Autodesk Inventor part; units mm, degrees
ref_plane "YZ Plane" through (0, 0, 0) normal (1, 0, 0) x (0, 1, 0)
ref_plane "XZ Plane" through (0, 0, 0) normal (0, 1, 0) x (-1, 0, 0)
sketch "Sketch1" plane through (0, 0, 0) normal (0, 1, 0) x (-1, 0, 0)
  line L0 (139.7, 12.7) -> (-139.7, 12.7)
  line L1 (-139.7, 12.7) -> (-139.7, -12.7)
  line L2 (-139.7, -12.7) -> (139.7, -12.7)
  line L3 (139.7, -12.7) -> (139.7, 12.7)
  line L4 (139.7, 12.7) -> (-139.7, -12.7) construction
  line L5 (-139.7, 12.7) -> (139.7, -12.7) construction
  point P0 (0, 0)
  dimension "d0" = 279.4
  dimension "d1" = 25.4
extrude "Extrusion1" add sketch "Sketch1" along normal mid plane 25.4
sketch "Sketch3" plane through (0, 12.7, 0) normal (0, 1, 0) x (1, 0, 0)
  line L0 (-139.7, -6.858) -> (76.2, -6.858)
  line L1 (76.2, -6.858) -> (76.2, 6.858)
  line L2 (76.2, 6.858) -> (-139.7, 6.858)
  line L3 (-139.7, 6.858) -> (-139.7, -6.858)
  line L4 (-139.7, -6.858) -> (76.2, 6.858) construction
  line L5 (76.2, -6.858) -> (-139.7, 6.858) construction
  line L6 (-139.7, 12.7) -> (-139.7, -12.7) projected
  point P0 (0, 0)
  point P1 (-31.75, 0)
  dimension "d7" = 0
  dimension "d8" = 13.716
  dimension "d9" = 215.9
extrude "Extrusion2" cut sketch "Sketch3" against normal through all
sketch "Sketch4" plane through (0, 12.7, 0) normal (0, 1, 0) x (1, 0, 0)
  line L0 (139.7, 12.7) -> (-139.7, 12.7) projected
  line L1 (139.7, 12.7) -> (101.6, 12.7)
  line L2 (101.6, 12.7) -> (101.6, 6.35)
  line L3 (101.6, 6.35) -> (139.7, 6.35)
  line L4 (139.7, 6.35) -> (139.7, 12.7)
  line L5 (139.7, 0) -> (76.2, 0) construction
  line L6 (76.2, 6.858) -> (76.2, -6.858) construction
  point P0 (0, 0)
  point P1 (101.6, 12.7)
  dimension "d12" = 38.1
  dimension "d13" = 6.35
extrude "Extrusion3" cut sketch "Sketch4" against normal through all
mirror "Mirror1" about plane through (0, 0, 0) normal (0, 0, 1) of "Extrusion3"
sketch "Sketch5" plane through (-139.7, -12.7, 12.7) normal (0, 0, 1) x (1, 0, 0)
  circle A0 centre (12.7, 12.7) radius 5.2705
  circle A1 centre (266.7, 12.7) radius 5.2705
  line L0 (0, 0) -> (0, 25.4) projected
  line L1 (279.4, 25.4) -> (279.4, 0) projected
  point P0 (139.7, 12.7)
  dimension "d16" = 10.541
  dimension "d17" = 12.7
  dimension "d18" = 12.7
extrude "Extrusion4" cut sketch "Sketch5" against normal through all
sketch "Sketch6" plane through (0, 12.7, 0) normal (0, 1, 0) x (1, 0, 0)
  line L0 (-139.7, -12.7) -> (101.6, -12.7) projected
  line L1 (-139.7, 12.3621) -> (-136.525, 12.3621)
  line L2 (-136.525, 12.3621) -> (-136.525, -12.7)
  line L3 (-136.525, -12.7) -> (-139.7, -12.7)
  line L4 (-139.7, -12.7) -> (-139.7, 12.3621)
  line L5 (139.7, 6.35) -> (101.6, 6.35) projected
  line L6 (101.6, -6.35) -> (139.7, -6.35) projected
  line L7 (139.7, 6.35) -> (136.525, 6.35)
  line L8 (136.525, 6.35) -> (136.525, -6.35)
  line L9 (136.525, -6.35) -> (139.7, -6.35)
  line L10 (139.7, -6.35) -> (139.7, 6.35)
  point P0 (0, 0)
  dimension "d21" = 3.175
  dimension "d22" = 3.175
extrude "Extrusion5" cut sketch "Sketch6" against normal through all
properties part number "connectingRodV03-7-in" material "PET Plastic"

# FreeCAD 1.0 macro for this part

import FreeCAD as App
import Part
import Sketcher
from FreeCAD import Vector
Q = App.Units.Quantity

doc = App.newDocument("Part")
params = doc.addObject("Spreadsheet::Sheet", "Params")
for row, (alias, value) in enumerate([
    ("sketch1_width", "11 in"),
    ("sketch1_height", "1 in"),
    ("pad1_length", "1 in"),
    ("sketch2_width", "8.5 in"),
    ("sketch2_height", "0.54 in"),
    ("sketch3_width", "1.5 in"),
    ("sketch3_height", "0.25 in"),
    ("sketch4_diameter", "0.415 in"),
    ("sketch5_width", "0.125 in"),
    ("sketch5_height", "0.5 in"),
], start=1):
    params.set(f"A{row}", alias)
    params.set(f"B{row}", "=" + value)
    params.setAlias(f"B{row}", alias)

body = doc.addObject("PartDesign::Body", "Body")

sketch1 = body.newObject("Sketcher::SketchObject", "Sketch")
sketch1.AttachmentSupport = (doc.getObject("XZ_Plane"), [""])
sketch1.MapMode = "FlatFace"
sketch1.addGeometry(Part.LineSegment(Vector(-140, -13, 0), Vector(-140, 13, 0)), False)
sketch1.addGeometry(Part.LineSegment(Vector(-140, 13, 0), Vector(140, 13, 0)), False)
sketch1.addGeometry(Part.LineSegment(Vector(140, 13, 0), Vector(140, -13, 0)), False)
sketch1.addGeometry(Part.LineSegment(Vector(140, -13, 0), Vector(-140, -13, 0)), False)
sketch1.addConstraint(Sketcher.Constraint("Coincident", 0, 2, 1, 1))
sketch1.addConstraint(Sketcher.Constraint("Coincident", 1, 2, 2, 1))
sketch1.addConstraint(Sketcher.Constraint("Coincident", 2, 2, 3, 1))
sketch1.addConstraint(Sketcher.Constraint("Coincident", 3, 2, 0, 1))
sketch1.addConstraint(Sketcher.Constraint("Vertical", 0))
sketch1.addConstraint(Sketcher.Constraint("Horizontal", 1))
sketch1.addConstraint(Sketcher.Constraint("Vertical", 2))
sketch1.addConstraint(Sketcher.Constraint("Horizontal", 3))
sketch1.addConstraint(Sketcher.Constraint("Symmetric", 0, 2, 2, 2, -1, 1))
sketch1.addConstraint(Sketcher.Constraint("DistanceX", 1, 1, 1, 2, Q("11 in")))
sketch1.addConstraint(Sketcher.Constraint("DistanceY", 0, 1, 0, 2, Q("1 in")))
sketch1.setExpression("Constraints[9]", "Params.sketch1_width")
sketch1.setExpression("Constraints[10]", "Params.sketch1_height")
pad1 = body.newObject("PartDesign::Pad", "Pad")
pad1.Profile = sketch1
pad1.setExpression("Length", "Params.pad1_length")
pad1.Midplane = True

sketch2 = body.newObject("Sketcher::SketchObject", "Sketch001")
sketch2.AttachmentSupport = (doc.getObject("XZ_Plane"), [""])
sketch2.MapMode = "FlatFace"
sketch2.AttachmentOffset = App.Placement(Vector(0, 0, -0.5 * 25.4), App.Rotation())
sketch2.addGeometry(Part.LineSegment(Vector(-140, -7, 0), Vector(-140, 7, 0)), False)
sketch2.addGeometry(Part.LineSegment(Vector(-140, 7, 0), Vector(76, 7, 0)), False)
sketch2.addGeometry(Part.LineSegment(Vector(76, 7, 0), Vector(76, -7, 0)), False)
sketch2.addGeometry(Part.LineSegment(Vector(76, -7, 0), Vector(-140, -7, 0)), False)
sketch2.addConstraint(Sketcher.Constraint("Coincident", 0, 2, 1, 1))
sketch2.addConstraint(Sketcher.Constraint("Coincident", 1, 2, 2, 1))
sketch2.addConstraint(Sketcher.Constraint("Coincident", 2, 2, 3, 1))
sketch2.addConstraint(Sketcher.Constraint("Coincident", 3, 2, 0, 1))
sketch2.addConstraint(Sketcher.Constraint("Vertical", 0))
sketch2.addConstraint(Sketcher.Constraint("Horizontal", 1))
sketch2.addConstraint(Sketcher.Constraint("Vertical", 2))
sketch2.addConstraint(Sketcher.Constraint("Horizontal", 3))
sketch2.addConstraint(Sketcher.Constraint("DistanceX", 1, 1, 1, 2, Q("8.5 in")))
sketch2.addConstraint(Sketcher.Constraint("DistanceY", 0, 1, 0, 2, Q("0.54 in")))
sketch2.addConstraint(Sketcher.Constraint("DistanceX", -1, 1, 1, 2, Q("3 in")))
sketch2.addConstraint(Sketcher.Constraint("DistanceY", -1, 1, 0, 2, Q("0.27 in")))
sketch2.setExpression("Constraints[8]", "Params.sketch2_width")
sketch2.setExpression("Constraints[9]", "Params.sketch2_height")
pocket1 = body.newObject("PartDesign::Pocket", "Pocket")
pocket1.Profile = sketch2
pocket1.Type = "ThroughAll"
pocket1.Reversed = True

sketch3 = body.newObject("Sketcher::SketchObject", "Sketch002")
sketch3.AttachmentSupport = (doc.getObject("XZ_Plane"), [""])
sketch3.MapMode = "FlatFace"
sketch3.AttachmentOffset = App.Placement(Vector(0, 0, -0.5 * 25.4), App.Rotation())
sketch3.addGeometry(Part.LineSegment(Vector(140, -6, 0), Vector(140, -13, 0)), False)
sketch3.addGeometry(Part.LineSegment(Vector(140, -13, 0), Vector(102, -13, 0)), False)
sketch3.addGeometry(Part.LineSegment(Vector(102, -13, 0), Vector(102, -6, 0)), False)
sketch3.addGeometry(Part.LineSegment(Vector(102, -6, 0), Vector(140, -6, 0)), False)
sketch3.addConstraint(Sketcher.Constraint("Coincident", 0, 2, 1, 1))
sketch3.addConstraint(Sketcher.Constraint("Coincident", 1, 2, 2, 1))
sketch3.addConstraint(Sketcher.Constraint("Coincident", 2, 2, 3, 1))
sketch3.addConstraint(Sketcher.Constraint("Coincident", 3, 2, 0, 1))
sketch3.addConstraint(Sketcher.Constraint("Vertical", 0))
sketch3.addConstraint(Sketcher.Constraint("Horizontal", 1))
sketch3.addConstraint(Sketcher.Constraint("Vertical", 2))
sketch3.addConstraint(Sketcher.Constraint("Horizontal", 3))
sketch3.addConstraint(Sketcher.Constraint("DistanceX", 1, 2, 1, 1, Q("1.5 in")))
sketch3.addConstraint(Sketcher.Constraint("DistanceY", 0, 2, 0, 1, Q("0.25 in")))
sketch3.addConstraint(Sketcher.Constraint("DistanceY", 2, 2, -1, 1, Q("0.25 in")))
sketch3.addConstraint(Sketcher.Constraint("DistanceX", -1, 1, 1, 2, Q("4 in")))
sketch3.setExpression("Constraints[8]", "Params.sketch3_width")
sketch3.setExpression("Constraints[9]", "Params.sketch3_height")
pocket2 = body.newObject("PartDesign::Pocket", "Pocket001")
pocket2.Profile = sketch3
pocket2.Type = "ThroughAll"
pocket2.Reversed = True
doc.recompute()

mirrored = body.newObject("PartDesign::Mirrored", "Mirrored")
mirrored.Originals = [pocket2]
mirrored.MirrorPlane = (doc.getObject("XY_Plane"), [""])
body.Tip = mirrored

sketch4 = body.newObject("Sketcher::SketchObject", "Sketch003")
sketch4.AttachmentSupport = (doc.getObject("XY_Plane"), [""])
sketch4.MapMode = "FlatFace"
sketch4.AttachmentOffset = App.Placement(Vector(0, 0, 0.5 * 25.4), App.Rotation())
sketch4.addGeometry(Part.Circle(Vector(-127, 0, 0), Vector(0, 0, 1), 5), False)
sketch4.addGeometry(Part.Circle(Vector(127, 0, 0), Vector(0, 0, 1), 5), False)
sketch4.addConstraint(Sketcher.Constraint("Equal", 0, 1))
sketch4.addConstraint(Sketcher.Constraint("Symmetric", 0, 3, 1, 3, -1, 1))
sketch4.addConstraint(Sketcher.Constraint("PointOnObject", 0, 3, -1))
sketch4.addConstraint(Sketcher.Constraint("Diameter", 0, Q("0.415 in")))
sketch4.addConstraint(Sketcher.Constraint("DistanceX", 0, 3, -1, 1, Q("5 in")))
sketch4.setExpression("Constraints[3]", "Params.sketch4_diameter")
pocket3 = body.newObject("PartDesign::Pocket", "Pocket002")
pocket3.Profile = sketch4
pocket3.Type = "ThroughAll"

sketch5 = body.newObject("Sketcher::SketchObject", "Sketch004")
sketch5.AttachmentSupport = (doc.getObject("XZ_Plane"), [""])
sketch5.MapMode = "FlatFace"
sketch5.AttachmentOffset = App.Placement(Vector(0, 0, -0.5 * 25.4), App.Rotation())
sketch5.addGeometry(Part.LineSegment(Vector(-139.7, -12.4, 0), Vector(-139.7, 12.7, 0)), False)
sketch5.addGeometry(Part.LineSegment(Vector(-139.7, 12.7, 0), Vector(-136.5, 12.7, 0)), False)
sketch5.addGeometry(Part.LineSegment(Vector(-136.5, 12.7, 0), Vector(-136.5, -12.4, 0)), False)
sketch5.addGeometry(Part.LineSegment(Vector(-136.5, -12.4, 0), Vector(-139.7, -12.4, 0)), False)
sketch5.addGeometry(Part.LineSegment(Vector(139.7, 6.3, 0), Vector(139.7, -6.3, 0)), False)
sketch5.addGeometry(Part.LineSegment(Vector(139.7, -6.3, 0), Vector(136.5, -6.3, 0)), False)
sketch5.addGeometry(Part.LineSegment(Vector(136.5, -6.3, 0), Vector(136.5, 6.3, 0)), False)
sketch5.addGeometry(Part.LineSegment(Vector(136.5, 6.3, 0), Vector(139.7, 6.3, 0)), False)
sketch5.addConstraint(Sketcher.Constraint("Coincident", 0, 2, 1, 1))
sketch5.addConstraint(Sketcher.Constraint("Coincident", 1, 2, 2, 1))
sketch5.addConstraint(Sketcher.Constraint("Coincident", 2, 2, 3, 1))
sketch5.addConstraint(Sketcher.Constraint("Coincident", 3, 2, 0, 1))
sketch5.addConstraint(Sketcher.Constraint("Coincident", 4, 2, 5, 1))
sketch5.addConstraint(Sketcher.Constraint("Coincident", 5, 2, 6, 1))
sketch5.addConstraint(Sketcher.Constraint("Coincident", 6, 2, 7, 1))
sketch5.addConstraint(Sketcher.Constraint("Coincident", 7, 2, 4, 1))
sketch5.addConstraint(Sketcher.Constraint("Vertical", 0))
sketch5.addConstraint(Sketcher.Constraint("Horizontal", 1))
sketch5.addConstraint(Sketcher.Constraint("Vertical", 2))
sketch5.addConstraint(Sketcher.Constraint("Horizontal", 3))
sketch5.addConstraint(Sketcher.Constraint("Vertical", 4))
sketch5.addConstraint(Sketcher.Constraint("Horizontal", 5))
sketch5.addConstraint(Sketcher.Constraint("Vertical", 6))
sketch5.addConstraint(Sketcher.Constraint("Horizontal", 7))
sketch5.addConstraint(Sketcher.Constraint("Equal", 3, 5))
sketch5.addConstraint(Sketcher.Constraint("DistanceX", 1, 1, 1, 2, Q("0.125 in")))
sketch5.addConstraint(Sketcher.Constraint("DistanceY", 4, 2, 4, 1, Q("0.5 in")))
sketch5.addConstraint(Sketcher.Constraint("DistanceX", 3, 2, 4, 2, Q("11 in")))
sketch5.addConstraint(Sketcher.Constraint("DistanceX", 0, 2, -1, 1, Q("5.5 in")))
sketch5.addConstraint(Sketcher.Constraint("DistanceY", -1, 1, 0, 2, Q("0.5 in")))
sketch5.addConstraint(Sketcher.Constraint("DistanceY", 4, 2, -1, 1, Q("0.25 in")))
sketch5.addConstraint(Sketcher.Constraint("DistanceY", 0, 1, 0, 2, Q("0.9867 in")))
sketch5.setExpression("Constraints[17]", "Params.sketch5_width")
sketch5.setExpression("Constraints[18]", "Params.sketch5_height")
pocket4 = body.newObject("PartDesign::Pocket", "Pocket003")
pocket4.Profile = sketch5
pocket4.Type = "ThroughAll"
pocket4.Reversed = True

doc.recompute()
